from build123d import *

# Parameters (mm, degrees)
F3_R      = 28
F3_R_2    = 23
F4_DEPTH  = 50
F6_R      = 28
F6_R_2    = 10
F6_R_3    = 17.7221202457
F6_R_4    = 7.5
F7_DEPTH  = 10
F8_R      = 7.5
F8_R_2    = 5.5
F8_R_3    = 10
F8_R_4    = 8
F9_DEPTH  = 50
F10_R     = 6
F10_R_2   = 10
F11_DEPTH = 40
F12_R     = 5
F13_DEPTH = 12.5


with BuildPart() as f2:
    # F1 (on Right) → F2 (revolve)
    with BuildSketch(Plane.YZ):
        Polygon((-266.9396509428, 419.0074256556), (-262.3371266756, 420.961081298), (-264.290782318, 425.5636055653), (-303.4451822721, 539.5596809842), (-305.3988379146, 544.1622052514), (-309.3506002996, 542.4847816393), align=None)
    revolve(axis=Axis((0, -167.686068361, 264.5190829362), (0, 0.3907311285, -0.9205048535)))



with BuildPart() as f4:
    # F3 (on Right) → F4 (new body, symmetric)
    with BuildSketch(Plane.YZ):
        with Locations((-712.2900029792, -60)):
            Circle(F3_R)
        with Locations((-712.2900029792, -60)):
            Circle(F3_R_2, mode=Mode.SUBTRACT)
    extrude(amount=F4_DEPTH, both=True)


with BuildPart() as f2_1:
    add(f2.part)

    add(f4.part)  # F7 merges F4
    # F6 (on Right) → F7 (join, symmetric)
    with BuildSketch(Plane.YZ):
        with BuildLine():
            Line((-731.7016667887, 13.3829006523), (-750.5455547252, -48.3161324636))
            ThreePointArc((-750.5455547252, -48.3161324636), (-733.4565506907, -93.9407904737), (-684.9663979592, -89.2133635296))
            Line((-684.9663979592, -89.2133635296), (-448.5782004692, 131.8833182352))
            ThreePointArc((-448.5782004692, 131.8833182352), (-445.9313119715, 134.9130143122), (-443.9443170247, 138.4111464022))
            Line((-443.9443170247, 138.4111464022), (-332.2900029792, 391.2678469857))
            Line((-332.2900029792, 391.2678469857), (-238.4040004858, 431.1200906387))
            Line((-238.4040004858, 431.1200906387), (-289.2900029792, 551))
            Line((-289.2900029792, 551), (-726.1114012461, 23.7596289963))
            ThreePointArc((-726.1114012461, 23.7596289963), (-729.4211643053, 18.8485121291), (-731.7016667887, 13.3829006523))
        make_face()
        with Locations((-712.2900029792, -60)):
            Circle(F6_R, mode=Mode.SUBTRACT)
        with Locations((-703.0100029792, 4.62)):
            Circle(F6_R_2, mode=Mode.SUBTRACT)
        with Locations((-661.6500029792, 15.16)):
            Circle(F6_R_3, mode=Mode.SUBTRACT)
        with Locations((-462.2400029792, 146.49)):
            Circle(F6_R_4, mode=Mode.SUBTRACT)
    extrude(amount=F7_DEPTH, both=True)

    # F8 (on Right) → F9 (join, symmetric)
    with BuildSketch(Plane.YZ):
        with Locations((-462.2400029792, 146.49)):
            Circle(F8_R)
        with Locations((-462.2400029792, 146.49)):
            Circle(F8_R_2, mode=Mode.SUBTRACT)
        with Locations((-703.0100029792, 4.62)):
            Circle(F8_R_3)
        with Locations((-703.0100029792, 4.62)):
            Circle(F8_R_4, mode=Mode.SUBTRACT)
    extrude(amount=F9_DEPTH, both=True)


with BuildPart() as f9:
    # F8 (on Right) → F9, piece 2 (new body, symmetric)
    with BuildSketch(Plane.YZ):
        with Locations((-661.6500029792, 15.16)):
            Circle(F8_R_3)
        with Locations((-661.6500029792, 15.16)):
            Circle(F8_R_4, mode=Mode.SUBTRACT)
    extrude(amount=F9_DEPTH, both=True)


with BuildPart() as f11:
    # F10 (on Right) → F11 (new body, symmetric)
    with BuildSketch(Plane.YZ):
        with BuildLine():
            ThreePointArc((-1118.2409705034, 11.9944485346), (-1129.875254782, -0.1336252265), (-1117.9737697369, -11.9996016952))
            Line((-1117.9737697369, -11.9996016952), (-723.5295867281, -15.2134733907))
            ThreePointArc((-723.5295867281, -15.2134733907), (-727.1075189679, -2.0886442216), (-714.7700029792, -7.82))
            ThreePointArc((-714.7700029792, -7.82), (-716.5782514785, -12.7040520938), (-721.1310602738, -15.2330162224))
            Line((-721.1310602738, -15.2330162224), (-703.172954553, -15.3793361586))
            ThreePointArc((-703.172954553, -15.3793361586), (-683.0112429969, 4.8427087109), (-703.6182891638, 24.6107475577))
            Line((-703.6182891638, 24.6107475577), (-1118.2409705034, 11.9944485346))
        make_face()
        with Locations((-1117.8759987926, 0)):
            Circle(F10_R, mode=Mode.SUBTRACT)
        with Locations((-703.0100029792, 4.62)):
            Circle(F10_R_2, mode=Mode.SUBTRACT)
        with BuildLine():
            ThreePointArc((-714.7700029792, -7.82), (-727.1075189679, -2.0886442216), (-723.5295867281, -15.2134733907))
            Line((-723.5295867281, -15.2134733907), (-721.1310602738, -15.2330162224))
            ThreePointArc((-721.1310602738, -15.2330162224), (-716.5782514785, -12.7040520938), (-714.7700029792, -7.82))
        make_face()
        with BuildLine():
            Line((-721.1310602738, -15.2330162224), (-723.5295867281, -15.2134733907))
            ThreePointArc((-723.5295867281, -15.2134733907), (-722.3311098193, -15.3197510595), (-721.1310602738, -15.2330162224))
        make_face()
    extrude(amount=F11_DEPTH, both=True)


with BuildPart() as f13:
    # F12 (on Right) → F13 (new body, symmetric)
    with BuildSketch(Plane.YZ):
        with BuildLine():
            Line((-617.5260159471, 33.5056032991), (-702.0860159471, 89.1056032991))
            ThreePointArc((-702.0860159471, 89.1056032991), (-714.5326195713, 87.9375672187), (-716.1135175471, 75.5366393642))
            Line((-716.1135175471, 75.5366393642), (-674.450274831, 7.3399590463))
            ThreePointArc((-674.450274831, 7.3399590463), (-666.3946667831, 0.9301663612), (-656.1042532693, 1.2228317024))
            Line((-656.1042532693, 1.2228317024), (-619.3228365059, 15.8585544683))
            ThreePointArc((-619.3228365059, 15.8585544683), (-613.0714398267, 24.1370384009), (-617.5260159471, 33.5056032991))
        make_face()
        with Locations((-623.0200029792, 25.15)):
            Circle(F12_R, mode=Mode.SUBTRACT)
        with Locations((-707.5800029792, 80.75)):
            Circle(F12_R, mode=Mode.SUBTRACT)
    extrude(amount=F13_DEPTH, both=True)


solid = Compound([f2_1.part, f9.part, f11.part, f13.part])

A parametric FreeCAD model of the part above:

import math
import FreeCAD as App
import Part
import Sketcher
Q = App.Units.Quantity


def add_polygon(sketch, points):
    """Adds a closed chain of lines whose ends are joined by coincident constraints."""
    first, n = sketch.GeometryCount, len(points)
    for a, b in zip(points, points[1:] + points[:1]):
        sketch.addGeometry(Part.LineSegment(App.Vector(*a, 0), App.Vector(*b, 0)), False)
    for i in range(n):
        sketch.addConstraint(Sketcher.Constraint("Coincident", first + i, 2, first + (i + 1) % n, 1))

doc = App.newDocument("Part")
body = doc.addObject("PartDesign::Body", "Body")

# Sketch on YZ plane
sketch1 = doc.addObject("Sketcher::SketchObject", "Sketch")
body.addObject(sketch1)
sketch1.AttachmentSupport = (doc.YZ_Plane, [""])
sketch1.MapMode = "FlatFace"
add_polygon(sketch1, [(-266.9, 419), (-262.3, 421), (-264.3, 425.6), (-303.4, 539.6), (-305.4, 544.2), (-309.4, 542.5)])  # lines 0-5
sketch1.addGeometry(Part.LineSegment(App.Vector(-289.3, 551, 0), App.Vector(-238.4, 431.1, 0)), True)  # axis
sketch1.addConstraint(Sketcher.Constraint("Perpendicular", 0, 1))
sketch1.addConstraint(Sketcher.Constraint("Parallel", 1, 3))
sketch1.addConstraint(Sketcher.Constraint("Perpendicular", 3, 4))
sketch1.addConstraint(Sketcher.Constraint("Parallel", 2, 5))
sketch1.addConstraint(Sketcher.Constraint("Perpendicular", 4, 6))
sketch1.addConstraint(Sketcher.Constraint("Equal", 0, 1))
sketch1.addConstraint(Sketcher.Constraint("Equal", 1, 3))
sketch1.addConstraint(Sketcher.Constraint("Angle", 0, Q("23 deg")))
sketch1.addConstraint(Sketcher.Constraint("Distance", 0, Q("5 mm")))
sketch1.addConstraint(Sketcher.Constraint("DistanceY", -1, 1, 6, 1, Q("551 mm")))
sketch1.addConstraint(Sketcher.Constraint("DistanceX", 6, 2, -1, 1, Q("238.404 mm")))
sketch1.addConstraint(Sketcher.Constraint("DistanceX", 4, 2, -1, 1, Q("309.3506 mm")))
sketch1.addConstraint(Sketcher.Constraint("DistanceX", 2, 2, 1, 2, Q("39.1544 mm")))
sketch1.addConstraint(Sketcher.Constraint("DistanceY", 0, 2, 2, 2, Q("118.5986 mm")))
sketch1.addConstraint(Sketcher.Constraint("DistanceY", -1, 1, 0, 2, Q("420.961081 mm")))
sketch1.addConstraint(Sketcher.Constraint("DistanceY", -1, 1, 6, 2, Q("431.12009 mm")))
revolution = doc.addObject("PartDesign::Revolution", "Revolution")
body.addObject(revolution)
revolution.Profile = sketch1
revolution.ReferenceAxis = (sketch1, ["Axis0"])
revolution.Angle = 360
body2 = doc.addObject("PartDesign::Body", "Body001")

# Sketch on YZ plane
sketch2 = doc.addObject("Sketcher::SketchObject", "Sketch001")
body2.addObject(sketch2)
sketch2.AttachmentSupport = (doc.getObject("YZ_Plane001"), [""])
sketch2.MapMode = "FlatFace"
sketch2.addGeometry(Part.Circle(App.Vector(-712, -60, 0), App.Vector(0, 0, 1), 28), False)
sketch2.addGeometry(Part.Circle(App.Vector(-712, -60, 0), App.Vector(0, 0, 1), 23), False)
sketch2.addConstraint(Sketcher.Constraint("Coincident", 1, 3, 0, 3))
sketch2.addConstraint(Sketcher.Constraint("Diameter", 0, Q("56 mm")))
sketch2.addConstraint(Sketcher.Constraint("Diameter", 1, Q("46 mm")))
sketch2.addConstraint(Sketcher.Constraint("DistanceY", 0, 3, -1, 1, Q("60 mm")))
sketch2.addConstraint(Sketcher.Constraint("DistanceX", 0, 3, -1, 1, Q("712.290003 mm")))
pad1 = doc.addObject("PartDesign::Pad", "Pad")
body2.addObject(pad1)
pad1.Profile = sketch2
pad1.Length = 100
pad1.Midplane = True
body.AllowCompound = True
doc.recompute()

boolean = doc.addObject("PartDesign::Boolean", "Boolean")
body.addObject(boolean)
boolean.Type = "Fuse"
boolean.addObjects([body2])

# Sketch on YZ plane
sketch3 = doc.addObject("Sketcher::SketchObject", "Sketch002")
body.addObject(sketch3)
sketch3.AttachmentSupport = (doc.YZ_Plane, [""])
sketch3.MapMode = "FlatFace"
sketch3.addGeometry(Part.LineSegment(App.Vector(-732, 13, 0), App.Vector(-751, -48, 0)), False)
sketch3.addGeometry(Part.ArcOfCircle(Part.Circle(App.Vector(-712, -60, 0), App.Vector(0, 0, 1), 40), math.radians(163), math.radians(313)), False)
sketch3.addGeometry(Part.LineSegment(App.Vector(-685, -89, 0), App.Vector(-449, 132, 0)), False)
sketch3.addGeometry(Part.ArcOfCircle(Part.Circle(App.Vector(-462, 146, 0), App.Vector(0, 0, 1), 20), math.radians(-47), math.radians(-24)), False)
sketch3.addGeometry(Part.LineSegment(App.Vector(-444, 138, 0), App.Vector(-332, 391, 0)), False)
sketch3.addGeometry(Part.LineSegment(App.Vector(-332, 391, 0), App.Vector(-238, 431, 0)), False)
sketch3.addGeometry(Part.LineSegment(App.Vector(-238, 431, 0), App.Vector(-289, 551, 0)), False)
sketch3.addGeometry(Part.LineSegment(App.Vector(-289, 551, 0), App.Vector(-726, 24, 0)), False)
sketch3.addGeometry(Part.ArcOfCircle(Part.Circle(App.Vector(-703, 5, 0), App.Vector(0, 0, 1), 30), math.radians(140), math.radians(163)), False)
sketch3.addGeometry(Part.Circle(App.Vector(-712, -60, 0), App.Vector(0, 0, 1), 28), False)
sketch3.addGeometry(Part.Circle(App.Vector(-703, 5, 0), App.Vector(0, 0, 1), 10), False)
sketch3.addGeometry(Part.Circle(App.Vector(-662, 15, 0), App.Vector(0, 0, 1), 18), False)
sketch3.addGeometry(Part.Circle(App.Vector(-462, 146, 0), App.Vector(0, 0, 1), 8), False)
sketch3.addConstraint(Sketcher.Constraint("Tangent", 0, 2, 1, 1))
sketch3.addConstraint(Sketcher.Constraint("Tangent", 1, 2, 2, 1))
sketch3.addConstraint(Sketcher.Constraint("Tangent", 2, 2, 3, 1))
sketch3.addConstraint(Sketcher.Constraint("Tangent", 3, 2, 4, 1))
sketch3.addConstraint(Sketcher.Constraint("Coincident", 4, 2, 5, 1))
sketch3.addConstraint(Sketcher.Constraint("Coincident", 5, 2, 6, 1))
sketch3.addConstraint(Sketcher.Constraint("Coincident", 6, 2, 7, 1))
sketch3.addConstraint(Sketcher.Constraint("Tangent", 7, 2, 8, 1))
sketch3.addConstraint(Sketcher.Constraint("Tangent", 8, 2, 0, 1))
sketch3.addConstraint(Sketcher.Constraint("Coincident", 9, 3, 1, 3))
sketch3.addConstraint(Sketcher.Constraint("Coincident", 10, 3, 8, 3))
sketch3.addConstraint(Sketcher.Constraint("Coincident", 12, 3, 3, 3))
sketch3.addConstraint(Sketcher.Constraint("Perpendicular", 5, 6))
sketch3.addConstraint(Sketcher.Constraint("Diameter", 9, Q("56 mm")))
sketch3.addConstraint(Sketcher.Constraint("Diameter", 10, Q("20 mm")))
sketch3.addConstraint(Sketcher.Constraint("Diameter", 12, Q("15 mm")))
sketch3.addConstraint(Sketcher.Constraint("Radius", 1, Q("40 mm")))
sketch3.addConstraint(Sketcher.Constraint("Radius", 3, Q("20 mm")))
sketch3.addConstraint(Sketcher.Constraint("Radius", 8, Q("30 mm")))
sketch3.addConstraint(Sketcher.Constraint("Angle", 5, Q("23 deg")))
sketch3.addConstraint(Sketcher.Constraint("DistanceY", 1, 3, -1, 1, Q("60 mm")))
sketch3.addConstraint(Sketcher.Constraint("DistanceY", -1, 1, 6, 2, Q("551 mm")))
sketch3.addConstraint(Sketcher.Constraint("DistanceX", 4, 2, 6, 2, Q("43 mm")))
sketch3.addConstraint(Sketcher.Constraint("Diameter", 11, Q("35.44424 mm")))
sketch3.addConstraint(Sketcher.Constraint("DistanceY", -1, 1, 3, 3, Q("146.49 mm")))
sketch3.addConstraint(Sketcher.Constraint("DistanceY", -1, 1, 8, 3, Q("4.62 mm")))
sketch3.addConstraint(Sketcher.Constraint("DistanceY", -1, 1, 11, 3, Q("15.16 mm")))
sketch3.addConstraint(Sketcher.Constraint("DistanceX", 1, 3, 3, 3, Q("250.05 mm")))
sketch3.addConstraint(Sketcher.Constraint("DistanceX", 1, 3, 8, 3, Q("9.28 mm")))
sketch3.addConstraint(Sketcher.Constraint("DistanceX", 10, 3, 11, 3, Q("41.36 mm")))
sketch3.addConstraint(Sketcher.Constraint("DistanceX", 3, 3, 4, 2, Q("129.95 mm")))
sketch3.addConstraint(Sketcher.Constraint("DistanceX", 5, 2, -1, 1, Q("238.404 mm")))
sketch3.addConstraint(Sketcher.Constraint("DistanceX", 2, 2, -1, 1, Q("448.5782 mm")))
pad2 = doc.addObject("PartDesign::Pad", "Pad001")
body.addObject(pad2)
pad2.Profile = sketch3
pad2.Length = 20
pad2.Midplane = True

# Sketch on YZ plane
sketch4 = doc.addObject("Sketcher::SketchObject", "Sketch003")
body.addObject(sketch4)
sketch4.AttachmentSupport = (doc.YZ_Plane, [""])
sketch4.MapMode = "FlatFace"
sketch4.addGeometry(Part.Circle(App.Vector(-462, 146, 0), App.Vector(0, 0, 1), 8), False)
sketch4.addGeometry(Part.Circle(App.Vector(-462, 146, 0), App.Vector(0, 0, 1), 6), False)
sketch4.addGeometry(Part.Circle(App.Vector(-703, 5, 0), App.Vector(0, 0, 1), 10), False)
sketch4.addGeometry(Part.Circle(App.Vector(-703, 5, 0), App.Vector(0, 0, 1), 8), False)
sketch4.addConstraint(Sketcher.Constraint("Coincident", 1, 3, 0, 3))
sketch4.addConstraint(Sketcher.Constraint("Coincident", 3, 3, 2, 3))
sketch4.addConstraint(Sketcher.Constraint("Diameter", 0, Q("15 mm")))
sketch4.addConstraint(Sketcher.Constraint("Diameter", 1, Q("11 mm")))
sketch4.addConstraint(Sketcher.Constraint("Diameter", 2, Q("20 mm")))
sketch4.addConstraint(Sketcher.Constraint("Diameter", 3, Q("16 mm")))
sketch4.addConstraint(Sketcher.Constraint("DistanceY", -1, 1, 0, 3, Q("146.49 mm")))
sketch4.addConstraint(Sketcher.Constraint("DistanceY", -1, 1, 2, 3, Q("4.62 mm")))
sketch4.addConstraint(Sketcher.Constraint("DistanceX", 2, 3, 0, 3, Q("240.77 mm")))
sketch4.addConstraint(Sketcher.Constraint("DistanceX", 0, 3, -1, 1, Q("462.240003 mm")))
pad3 = doc.addObject("PartDesign::Pad", "Pad002")
body.addObject(pad3)
pad3.Profile = sketch4
pad3.Length = 100
pad3.Midplane = True
body3 = doc.addObject("PartDesign::Body", "Body002")

# Sketch on YZ plane
sketch5 = doc.addObject("Sketcher::SketchObject", "Sketch004")
body3.addObject(sketch5)
sketch5.AttachmentSupport = (doc.getObject("YZ_Plane002"), [""])
sketch5.MapMode = "FlatFace"
sketch5.addGeometry(Part.Circle(App.Vector(-662, 15, 0), App.Vector(0, 0, 1), 10), False)
sketch5.addGeometry(Part.Circle(App.Vector(-662, 15, 0), App.Vector(0, 0, 1), 8), False)
sketch5.addConstraint(Sketcher.Constraint("Coincident", 1, 3, 0, 3))
sketch5.addConstraint(Sketcher.Constraint("Diameter", 0, Q("20 mm")))
sketch5.addConstraint(Sketcher.Constraint("Diameter", 1, Q("16 mm")))
sketch5.addConstraint(Sketcher.Constraint("DistanceY", -1, 1, 0, 3, Q("15.16 mm")))
sketch5.addConstraint(Sketcher.Constraint("DistanceX", 0, 3, -1, 1, Q("661.650003 mm")))
pad4 = doc.addObject("PartDesign::Pad", "Pad003")
body3.addObject(pad4)
pad4.Profile = sketch5
pad4.Length = 100
pad4.Midplane = True
body4 = doc.addObject("PartDesign::Body", "Body003")

# Sketch on YZ plane
sketch6 = doc.addObject("Sketcher::SketchObject", "Sketch005")
body4.addObject(sketch6)
sketch6.AttachmentSupport = (doc.getObject("YZ_Plane003"), [""])
sketch6.MapMode = "FlatFace"
sketch6.addGeometry(Part.ArcOfCircle(Part.Circle(App.Vector(-1117.9, 0, 0), App.Vector(0, 0, 1), 12), math.radians(92), math.radians(270)), False)
sketch6.addGeometry(Part.LineSegment(App.Vector(-1118, -12, 0), App.Vector(-723.5, -15.2, 0)), False)
sketch6.addGeometry(Part.ArcOfCircle(Part.Circle(App.Vector(-722.3, -7.8, 0), App.Vector(0, 0, 1), 7.5), math.radians(-99.67), math.radians(-81.27)), False)
sketch6.addGeometry(Part.LineSegment(App.Vector(-721.1, -15.2, 0), App.Vector(-703.2, -15.4, 0)), False)
sketch6.addGeometry(Part.ArcOfCircle(Part.Circle(App.Vector(-703, 4.6, 0), App.Vector(0, 0, 1), 20), math.radians(-90), math.radians(92)), False)
sketch6.addGeometry(Part.LineSegment(App.Vector(-703.6, 24.6, 0), App.Vector(-1118.2, 12, 0)), False)
sketch6.addGeometry(Part.Circle(App.Vector(-1117.9, 0, 0), App.Vector(0, 0, 1), 6), False)
sketch6.addGeometry(Part.Circle(App.Vector(-703, 4.6, 0), App.Vector(0, 0, 1), 10), False)
sketch6.addConstraint(Sketcher.Constraint("Tangent", 0, 2, 1, 1))
sketch6.addConstraint(Sketcher.Constraint("Coincident", 1, 2, 2, 1))
sketch6.addConstraint(Sketcher.Constraint("Coincident", 2, 2, 3, 1))
sketch6.addConstraint(Sketcher.Constraint("Tangent", 3, 2, 4, 1))
sketch6.addConstraint(Sketcher.Constraint("Tangent", 4, 2, 5, 1))
sketch6.addConstraint(Sketcher.Constraint("Tangent", 5, 2, 0, 1))
sketch6.addConstraint(Sketcher.Constraint("Coincident", 6, 3, 0, 3))
sketch6.addConstraint(Sketcher.Constraint("Coincident", 7, 3, 4, 3))
sketch6.addConstraint(Sketcher.Constraint("PointOnObject", 0, 3, -1))
sketch6.addConstraint(Sketcher.Constraint("Parallel", 1, 3))
sketch6.addConstraint(Sketcher.Constraint("Diameter", 6, Q("12 mm")))
sketch6.addConstraint(Sketcher.Constraint("Diameter", 7, Q("20 mm")))
sketch6.addConstraint(Sketcher.Constraint("Radius", 0, Q("12 mm")))
sketch6.addConstraint(Sketcher.Constraint("Radius", 4, Q("20 mm")))
sketch6.addConstraint(Sketcher.Constraint("Radius", 2, Q("7.5 mm")))
sketch6.addConstraint(Sketcher.Constraint("DistanceY", 2, 3, -1, 1, Q("7.82 mm")))
sketch6.addConstraint(Sketcher.Constraint("DistanceY", -1, 1, 4, 3, Q("4.62 mm")))
sketch6.addConstraint(Sketcher.Constraint("DistanceX", 2, 3, 4, 3, Q("19.26 mm")))
sketch6.addConstraint(Sketcher.Constraint("DistanceX", 0, 3, -1, 1, Q("1117.875999 mm")))
sketch6.addConstraint(Sketcher.Constraint("Distance", 3, Q("17.958702 mm")))
sketch6.addConstraint(Sketcher.Constraint("DistanceX", 2, 2, -1, 1, Q("721.13106 mm")))
pad5 = doc.addObject("PartDesign::Pad", "Pad004")
body4.addObject(pad5)
pad5.Profile = sketch6
pad5.Length = 80
pad5.Midplane = True
body5 = doc.addObject("PartDesign::Body", "Body004")

# Sketch on YZ plane
sketch7 = doc.addObject("Sketcher::SketchObject", "Sketch006")
body5.addObject(sketch7)
sketch7.AttachmentSupport = (doc.getObject("YZ_Plane004"), [""])
sketch7.MapMode = "FlatFace"
sketch7.addGeometry(Part.LineSegment(App.Vector(-618, 34, 0), App.Vector(-702, 89, 0)), False)
sketch7.addGeometry(Part.ArcOfCircle(Part.Circle(App.Vector(-708, 81, 0), App.Vector(0, 0, 1), 10), math.radians(57), math.radians(211)), False)
sketch7.addGeometry(Part.LineSegment(App.Vector(-716, 76, 0), App.Vector(-674, 7, 0)), False)
sketch7.addGeometry(Part.ArcOfCircle(Part.Circle(App.Vector(-662, 15, 0), App.Vector(0, 0, 1), 15), math.radians(-149), math.radians(-68)), False)
sketch7.addGeometry(Part.LineSegment(App.Vector(-656, 1, 0), App.Vector(-619, 16, 0)), False)
sketch7.addGeometry(Part.ArcOfCircle(Part.Circle(App.Vector(-623, 25, 0), App.Vector(0, 0, 1), 10), math.radians(-68), math.radians(57)), False)
sketch7.addGeometry(Part.Circle(App.Vector(-623, 25, 0), App.Vector(0, 0, 1), 5), False)
sketch7.addGeometry(Part.Circle(App.Vector(-708, 81, 0), App.Vector(0, 0, 1), 5), False)
sketch7.addConstraint(Sketcher.Constraint("Tangent", 0, 2, 1, 1))
sketch7.addConstraint(Sketcher.Constraint("Tangent", 1, 2, 2, 1))
sketch7.addConstraint(Sketcher.Constraint("Tangent", 2, 2, 3, 1))
sketch7.addConstraint(Sketcher.Constraint("Tangent", 3, 2, 4, 1))
sketch7.addConstraint(Sketcher.Constraint("Tangent", 4, 2, 5, 1))
sketch7.addConstraint(Sketcher.Constraint("Tangent", 5, 2, 0, 1))
sketch7.addConstraint(Sketcher.Constraint("Coincident", 6, 3, 5, 3))
sketch7.addConstraint(Sketcher.Constraint("Coincident", 7, 3, 1, 3))
sketch7.addConstraint(Sketcher.Constraint("Equal", 1, 5))
sketch7.addConstraint(Sketcher.Constraint("Equal", 6, 7))
sketch7.addConstraint(Sketcher.Constraint("Diameter", 6, Q("10 mm")))
sketch7.addConstraint(Sketcher.Constraint("Radius", 1, Q("10 mm")))
sketch7.addConstraint(Sketcher.Constraint("Radius", 3, Q("15 mm")))
sketch7.addConstraint(Sketcher.Constraint("DistanceY", 5, 3, 1, 3, Q("55.6 mm")))
sketch7.addConstraint(Sketcher.Constraint("DistanceY", -1, 1, 1, 3, Q("80.75 mm")))
sketch7.addConstraint(Sketcher.Constraint("DistanceY", -1, 1, 3, 3, Q("15.16 mm")))
sketch7.addConstraint(Sketcher.Constraint("DistanceX", 1, 3, 3, 3, Q("45.93 mm")))
sketch7.addConstraint(Sketcher.Constraint("DistanceX", 3, 3, 5, 3, Q("38.63 mm")))
sketch7.addConstraint(Sketcher.Constraint("DistanceX", 1, 3, -1, 1, Q("707.580003 mm")))
pad6 = doc.addObject("PartDesign::Pad", "Pad005")
body5.addObject(pad6)
pad6.Profile = sketch7
pad6.Length = 25
pad6.Midplane = True

doc.recompute()
